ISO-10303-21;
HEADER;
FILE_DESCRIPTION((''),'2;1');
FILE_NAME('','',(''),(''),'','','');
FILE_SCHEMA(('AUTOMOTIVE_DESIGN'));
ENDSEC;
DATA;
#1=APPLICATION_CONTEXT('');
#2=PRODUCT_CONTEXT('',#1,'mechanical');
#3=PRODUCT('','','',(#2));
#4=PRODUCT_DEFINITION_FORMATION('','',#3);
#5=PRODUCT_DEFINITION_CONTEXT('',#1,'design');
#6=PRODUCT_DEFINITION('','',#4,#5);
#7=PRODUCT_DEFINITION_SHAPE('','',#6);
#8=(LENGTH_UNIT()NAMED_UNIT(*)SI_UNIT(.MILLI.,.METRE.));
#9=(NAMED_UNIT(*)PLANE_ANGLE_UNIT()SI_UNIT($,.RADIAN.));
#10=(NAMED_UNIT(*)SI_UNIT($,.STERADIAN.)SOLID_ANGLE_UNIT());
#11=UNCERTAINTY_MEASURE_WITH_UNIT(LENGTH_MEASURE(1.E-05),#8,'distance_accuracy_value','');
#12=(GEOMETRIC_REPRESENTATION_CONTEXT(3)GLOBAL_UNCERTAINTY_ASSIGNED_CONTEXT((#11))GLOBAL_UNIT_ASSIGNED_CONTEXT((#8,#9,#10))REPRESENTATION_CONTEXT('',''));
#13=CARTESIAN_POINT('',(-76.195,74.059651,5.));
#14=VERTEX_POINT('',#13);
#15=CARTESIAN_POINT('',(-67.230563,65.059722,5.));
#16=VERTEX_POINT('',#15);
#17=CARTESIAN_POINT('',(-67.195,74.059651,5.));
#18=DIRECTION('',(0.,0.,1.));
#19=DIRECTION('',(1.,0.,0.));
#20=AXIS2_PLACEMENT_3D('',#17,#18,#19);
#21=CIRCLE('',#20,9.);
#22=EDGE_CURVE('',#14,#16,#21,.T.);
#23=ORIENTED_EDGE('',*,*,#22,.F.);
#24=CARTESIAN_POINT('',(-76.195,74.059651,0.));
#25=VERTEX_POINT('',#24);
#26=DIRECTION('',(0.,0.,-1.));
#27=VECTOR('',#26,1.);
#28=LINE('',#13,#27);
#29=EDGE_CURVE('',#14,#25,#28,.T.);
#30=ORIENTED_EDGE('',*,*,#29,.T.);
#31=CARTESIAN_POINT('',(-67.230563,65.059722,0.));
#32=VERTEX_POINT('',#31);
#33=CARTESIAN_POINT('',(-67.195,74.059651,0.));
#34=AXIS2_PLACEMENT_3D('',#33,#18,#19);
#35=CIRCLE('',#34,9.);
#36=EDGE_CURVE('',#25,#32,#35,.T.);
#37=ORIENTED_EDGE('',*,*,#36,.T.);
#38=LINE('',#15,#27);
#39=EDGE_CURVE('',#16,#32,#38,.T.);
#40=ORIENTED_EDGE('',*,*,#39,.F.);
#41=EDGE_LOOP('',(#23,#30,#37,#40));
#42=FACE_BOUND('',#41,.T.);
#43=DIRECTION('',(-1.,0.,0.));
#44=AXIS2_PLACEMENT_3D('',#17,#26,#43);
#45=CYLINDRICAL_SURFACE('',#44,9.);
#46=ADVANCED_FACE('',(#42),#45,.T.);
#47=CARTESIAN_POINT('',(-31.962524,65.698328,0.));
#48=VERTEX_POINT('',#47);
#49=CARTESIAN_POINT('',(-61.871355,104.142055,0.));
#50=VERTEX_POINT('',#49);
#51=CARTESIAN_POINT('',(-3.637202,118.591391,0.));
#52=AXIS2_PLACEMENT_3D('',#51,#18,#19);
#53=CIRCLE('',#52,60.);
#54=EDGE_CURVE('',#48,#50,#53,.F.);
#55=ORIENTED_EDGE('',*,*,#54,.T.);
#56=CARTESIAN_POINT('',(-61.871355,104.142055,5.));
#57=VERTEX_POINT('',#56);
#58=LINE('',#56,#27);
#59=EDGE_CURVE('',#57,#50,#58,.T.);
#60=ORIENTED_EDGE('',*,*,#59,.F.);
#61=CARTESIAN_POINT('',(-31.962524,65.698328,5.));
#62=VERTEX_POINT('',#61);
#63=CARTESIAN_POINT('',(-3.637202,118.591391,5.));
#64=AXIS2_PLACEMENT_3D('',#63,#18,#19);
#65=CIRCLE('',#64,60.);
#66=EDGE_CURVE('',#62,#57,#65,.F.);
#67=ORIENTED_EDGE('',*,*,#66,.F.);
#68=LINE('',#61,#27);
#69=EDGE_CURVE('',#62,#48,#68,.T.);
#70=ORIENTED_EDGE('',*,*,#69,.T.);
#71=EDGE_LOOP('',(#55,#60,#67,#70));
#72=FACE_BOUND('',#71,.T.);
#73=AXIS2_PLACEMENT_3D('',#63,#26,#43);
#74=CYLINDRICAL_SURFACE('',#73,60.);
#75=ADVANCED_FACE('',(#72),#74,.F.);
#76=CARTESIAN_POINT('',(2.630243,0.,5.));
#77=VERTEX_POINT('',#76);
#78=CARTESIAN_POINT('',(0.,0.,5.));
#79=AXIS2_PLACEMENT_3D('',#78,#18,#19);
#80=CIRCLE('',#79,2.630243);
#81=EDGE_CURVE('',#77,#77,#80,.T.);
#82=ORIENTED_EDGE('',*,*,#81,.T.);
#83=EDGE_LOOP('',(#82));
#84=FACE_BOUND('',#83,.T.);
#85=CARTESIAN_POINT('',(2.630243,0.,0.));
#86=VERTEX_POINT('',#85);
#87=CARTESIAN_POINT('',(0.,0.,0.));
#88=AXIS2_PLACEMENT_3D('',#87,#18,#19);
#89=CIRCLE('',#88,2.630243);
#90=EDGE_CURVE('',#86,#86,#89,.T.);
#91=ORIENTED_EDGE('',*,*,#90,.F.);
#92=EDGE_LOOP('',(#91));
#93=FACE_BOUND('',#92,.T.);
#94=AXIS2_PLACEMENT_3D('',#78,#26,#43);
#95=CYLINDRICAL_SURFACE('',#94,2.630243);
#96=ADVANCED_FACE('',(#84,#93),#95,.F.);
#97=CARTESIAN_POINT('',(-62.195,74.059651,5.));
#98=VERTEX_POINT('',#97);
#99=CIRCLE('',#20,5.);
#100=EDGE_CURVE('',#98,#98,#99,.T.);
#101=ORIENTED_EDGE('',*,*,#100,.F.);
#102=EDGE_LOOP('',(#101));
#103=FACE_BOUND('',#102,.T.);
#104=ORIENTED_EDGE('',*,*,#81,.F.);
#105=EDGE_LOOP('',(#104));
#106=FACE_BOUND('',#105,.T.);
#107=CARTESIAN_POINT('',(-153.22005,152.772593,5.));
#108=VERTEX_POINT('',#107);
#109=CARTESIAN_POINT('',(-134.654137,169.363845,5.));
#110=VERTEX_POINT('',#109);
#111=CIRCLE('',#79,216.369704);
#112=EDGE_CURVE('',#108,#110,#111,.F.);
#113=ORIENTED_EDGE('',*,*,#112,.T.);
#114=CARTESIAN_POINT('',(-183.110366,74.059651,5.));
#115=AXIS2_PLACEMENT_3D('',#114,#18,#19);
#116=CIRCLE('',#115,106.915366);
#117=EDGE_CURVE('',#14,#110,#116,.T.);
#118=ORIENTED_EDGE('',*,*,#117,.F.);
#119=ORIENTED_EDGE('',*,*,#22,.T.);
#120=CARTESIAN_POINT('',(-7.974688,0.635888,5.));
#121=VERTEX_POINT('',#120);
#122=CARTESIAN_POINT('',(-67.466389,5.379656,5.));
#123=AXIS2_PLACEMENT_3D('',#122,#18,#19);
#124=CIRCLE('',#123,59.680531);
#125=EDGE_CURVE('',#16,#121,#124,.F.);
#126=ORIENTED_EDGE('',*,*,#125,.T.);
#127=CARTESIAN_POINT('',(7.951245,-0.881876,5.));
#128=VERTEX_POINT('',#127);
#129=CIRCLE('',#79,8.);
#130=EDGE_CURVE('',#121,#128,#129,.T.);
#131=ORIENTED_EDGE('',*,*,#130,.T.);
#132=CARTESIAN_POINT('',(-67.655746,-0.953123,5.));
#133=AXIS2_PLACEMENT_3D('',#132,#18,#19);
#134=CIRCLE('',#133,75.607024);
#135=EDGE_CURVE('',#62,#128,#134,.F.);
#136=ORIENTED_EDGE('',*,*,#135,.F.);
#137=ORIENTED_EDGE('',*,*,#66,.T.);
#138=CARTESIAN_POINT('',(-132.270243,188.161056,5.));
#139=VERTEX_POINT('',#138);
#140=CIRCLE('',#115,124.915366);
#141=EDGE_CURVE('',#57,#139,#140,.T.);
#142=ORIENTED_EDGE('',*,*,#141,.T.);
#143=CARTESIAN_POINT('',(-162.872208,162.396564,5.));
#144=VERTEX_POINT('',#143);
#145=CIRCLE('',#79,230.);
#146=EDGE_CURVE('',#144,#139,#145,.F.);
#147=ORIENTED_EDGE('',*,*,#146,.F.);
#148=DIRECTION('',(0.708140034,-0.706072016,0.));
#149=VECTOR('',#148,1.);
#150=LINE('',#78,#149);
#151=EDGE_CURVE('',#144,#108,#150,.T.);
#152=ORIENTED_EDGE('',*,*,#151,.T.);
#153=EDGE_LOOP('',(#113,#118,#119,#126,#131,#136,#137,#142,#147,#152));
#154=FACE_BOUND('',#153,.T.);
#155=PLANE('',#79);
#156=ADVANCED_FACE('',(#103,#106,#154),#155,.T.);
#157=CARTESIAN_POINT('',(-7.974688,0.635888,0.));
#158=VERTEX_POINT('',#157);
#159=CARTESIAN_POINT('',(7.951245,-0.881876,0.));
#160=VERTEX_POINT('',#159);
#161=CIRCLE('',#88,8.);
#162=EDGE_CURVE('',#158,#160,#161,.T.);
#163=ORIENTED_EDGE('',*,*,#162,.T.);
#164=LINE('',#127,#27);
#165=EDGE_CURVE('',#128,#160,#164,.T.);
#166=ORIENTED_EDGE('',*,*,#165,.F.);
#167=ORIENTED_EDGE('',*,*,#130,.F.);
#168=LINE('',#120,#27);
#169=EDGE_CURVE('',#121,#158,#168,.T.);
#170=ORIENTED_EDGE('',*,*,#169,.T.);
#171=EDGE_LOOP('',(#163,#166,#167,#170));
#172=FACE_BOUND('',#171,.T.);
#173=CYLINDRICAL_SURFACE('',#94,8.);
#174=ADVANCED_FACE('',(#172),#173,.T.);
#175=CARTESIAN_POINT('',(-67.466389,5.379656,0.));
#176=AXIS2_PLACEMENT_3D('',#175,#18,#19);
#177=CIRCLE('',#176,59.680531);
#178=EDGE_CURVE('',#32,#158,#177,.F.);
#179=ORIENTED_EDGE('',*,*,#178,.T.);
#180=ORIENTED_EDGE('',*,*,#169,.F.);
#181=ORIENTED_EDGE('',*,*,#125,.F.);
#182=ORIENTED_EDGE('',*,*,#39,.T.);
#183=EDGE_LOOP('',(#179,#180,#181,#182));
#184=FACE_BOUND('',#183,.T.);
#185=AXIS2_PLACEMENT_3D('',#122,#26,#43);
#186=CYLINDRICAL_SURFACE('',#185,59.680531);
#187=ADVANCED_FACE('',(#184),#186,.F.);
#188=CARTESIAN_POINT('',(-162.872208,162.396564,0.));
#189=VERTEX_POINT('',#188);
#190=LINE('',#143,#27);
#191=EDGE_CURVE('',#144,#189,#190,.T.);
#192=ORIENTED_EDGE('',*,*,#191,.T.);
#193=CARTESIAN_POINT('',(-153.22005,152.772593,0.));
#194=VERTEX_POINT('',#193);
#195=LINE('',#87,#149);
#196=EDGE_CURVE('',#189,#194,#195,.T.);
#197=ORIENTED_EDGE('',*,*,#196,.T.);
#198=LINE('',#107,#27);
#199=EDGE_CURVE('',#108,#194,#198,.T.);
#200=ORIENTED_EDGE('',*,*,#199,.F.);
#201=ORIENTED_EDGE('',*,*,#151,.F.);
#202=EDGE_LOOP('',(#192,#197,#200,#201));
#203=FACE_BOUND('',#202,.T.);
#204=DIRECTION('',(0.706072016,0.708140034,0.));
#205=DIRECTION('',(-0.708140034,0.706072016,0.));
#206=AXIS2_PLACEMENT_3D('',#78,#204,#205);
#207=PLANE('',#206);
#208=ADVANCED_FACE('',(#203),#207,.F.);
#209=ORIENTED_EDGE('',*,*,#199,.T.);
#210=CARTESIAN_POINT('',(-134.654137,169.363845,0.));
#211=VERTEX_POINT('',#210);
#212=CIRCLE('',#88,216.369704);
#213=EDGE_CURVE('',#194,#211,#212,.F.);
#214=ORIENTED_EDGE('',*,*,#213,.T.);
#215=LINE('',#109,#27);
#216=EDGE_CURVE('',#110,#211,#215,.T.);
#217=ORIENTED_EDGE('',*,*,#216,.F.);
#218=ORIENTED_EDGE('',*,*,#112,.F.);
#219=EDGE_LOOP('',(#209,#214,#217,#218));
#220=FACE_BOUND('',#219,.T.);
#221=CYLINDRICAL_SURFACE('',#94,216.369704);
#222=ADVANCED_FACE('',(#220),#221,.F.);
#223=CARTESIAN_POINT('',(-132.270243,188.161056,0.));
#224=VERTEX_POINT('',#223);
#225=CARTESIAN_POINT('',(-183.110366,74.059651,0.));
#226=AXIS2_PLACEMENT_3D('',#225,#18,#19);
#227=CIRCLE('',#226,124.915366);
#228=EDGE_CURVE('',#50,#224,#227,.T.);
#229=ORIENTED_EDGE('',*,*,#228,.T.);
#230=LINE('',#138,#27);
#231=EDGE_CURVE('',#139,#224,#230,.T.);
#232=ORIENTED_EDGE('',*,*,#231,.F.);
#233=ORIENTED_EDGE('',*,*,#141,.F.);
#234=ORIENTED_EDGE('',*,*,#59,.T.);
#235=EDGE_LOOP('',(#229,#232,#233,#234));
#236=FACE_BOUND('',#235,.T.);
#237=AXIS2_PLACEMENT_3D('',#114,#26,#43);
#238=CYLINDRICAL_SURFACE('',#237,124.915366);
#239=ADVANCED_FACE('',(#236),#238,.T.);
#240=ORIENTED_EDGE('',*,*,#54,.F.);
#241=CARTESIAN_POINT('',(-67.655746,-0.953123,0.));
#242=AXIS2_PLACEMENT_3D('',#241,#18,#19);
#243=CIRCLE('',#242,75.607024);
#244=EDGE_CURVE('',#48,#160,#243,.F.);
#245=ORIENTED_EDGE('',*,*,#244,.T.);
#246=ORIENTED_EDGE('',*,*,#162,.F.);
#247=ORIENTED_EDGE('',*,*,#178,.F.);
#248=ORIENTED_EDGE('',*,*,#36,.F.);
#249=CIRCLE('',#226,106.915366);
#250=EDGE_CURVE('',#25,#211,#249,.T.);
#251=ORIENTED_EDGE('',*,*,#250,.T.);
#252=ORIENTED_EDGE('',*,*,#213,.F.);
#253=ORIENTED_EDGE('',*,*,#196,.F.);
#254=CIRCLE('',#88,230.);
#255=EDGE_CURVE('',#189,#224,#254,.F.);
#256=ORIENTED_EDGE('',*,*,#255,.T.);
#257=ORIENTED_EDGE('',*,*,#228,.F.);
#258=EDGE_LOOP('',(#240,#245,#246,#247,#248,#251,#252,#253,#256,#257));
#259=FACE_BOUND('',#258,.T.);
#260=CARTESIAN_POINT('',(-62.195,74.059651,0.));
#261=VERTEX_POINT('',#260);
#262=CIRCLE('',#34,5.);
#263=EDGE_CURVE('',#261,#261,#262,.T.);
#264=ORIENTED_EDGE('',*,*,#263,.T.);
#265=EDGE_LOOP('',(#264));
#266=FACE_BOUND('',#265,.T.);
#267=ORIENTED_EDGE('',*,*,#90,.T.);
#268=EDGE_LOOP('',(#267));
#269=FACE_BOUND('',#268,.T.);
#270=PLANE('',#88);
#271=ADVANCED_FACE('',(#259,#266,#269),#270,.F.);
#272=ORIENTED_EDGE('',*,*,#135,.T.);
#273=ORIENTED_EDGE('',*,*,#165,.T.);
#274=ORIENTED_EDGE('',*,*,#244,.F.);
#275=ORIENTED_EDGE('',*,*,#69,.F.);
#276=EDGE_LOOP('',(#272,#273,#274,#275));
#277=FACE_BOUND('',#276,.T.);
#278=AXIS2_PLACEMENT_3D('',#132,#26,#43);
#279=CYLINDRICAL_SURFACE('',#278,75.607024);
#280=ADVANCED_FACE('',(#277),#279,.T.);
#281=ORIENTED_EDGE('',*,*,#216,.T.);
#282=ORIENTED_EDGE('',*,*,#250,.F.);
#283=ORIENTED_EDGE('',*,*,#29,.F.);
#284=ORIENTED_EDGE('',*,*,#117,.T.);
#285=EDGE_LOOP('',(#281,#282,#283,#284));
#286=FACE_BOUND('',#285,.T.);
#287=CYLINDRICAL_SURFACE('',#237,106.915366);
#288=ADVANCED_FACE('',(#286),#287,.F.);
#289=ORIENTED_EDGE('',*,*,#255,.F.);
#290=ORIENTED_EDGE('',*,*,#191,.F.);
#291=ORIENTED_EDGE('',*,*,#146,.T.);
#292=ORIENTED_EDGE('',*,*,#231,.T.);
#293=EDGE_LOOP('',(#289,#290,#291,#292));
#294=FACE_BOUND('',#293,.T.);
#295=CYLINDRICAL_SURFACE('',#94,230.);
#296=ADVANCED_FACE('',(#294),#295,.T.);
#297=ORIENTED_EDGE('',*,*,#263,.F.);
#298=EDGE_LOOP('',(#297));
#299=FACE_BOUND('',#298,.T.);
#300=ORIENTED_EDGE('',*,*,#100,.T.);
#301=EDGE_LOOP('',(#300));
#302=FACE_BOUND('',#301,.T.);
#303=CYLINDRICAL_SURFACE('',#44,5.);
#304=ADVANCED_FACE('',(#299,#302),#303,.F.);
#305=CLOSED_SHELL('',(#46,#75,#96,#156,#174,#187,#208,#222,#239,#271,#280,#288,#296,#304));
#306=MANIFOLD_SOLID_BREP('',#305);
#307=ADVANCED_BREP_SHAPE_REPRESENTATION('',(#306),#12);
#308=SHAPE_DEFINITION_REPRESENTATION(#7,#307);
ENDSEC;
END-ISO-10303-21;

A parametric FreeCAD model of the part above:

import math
import FreeCAD as App
import Part
import Sketcher

V = App.Vector

doc = App.newDocument("Part")
body = doc.addObject("PartDesign::Body", "Body")

# Sketch on XY plane
sketch1 = doc.addObject("Sketcher::SketchObject", "Sketch")
body.addObject(sketch1)
sketch1.AttachmentSupport = (doc.XY_Plane, [""])
sketch1.MapMode = "FlatFace"
sketch1.addGeometry([
    Part.ArcOfCircle(Part.Circle(V(0, 0, 0), V(0, 0, 1), 230), math.radians(125.105796), math.radians(135.083784)),  # 0
    Part.LineSegment(V(-162.872208, 162.396564, 0), V(-153.22005, 152.772593, 0)),  # 1
    Part.ArcOfCircle(Part.Circle(V(0, 0, 0), V(0, 0, 1), 216.369704), math.radians(128.486747), math.radians(135.083784)),  # 2
    Part.ArcOfCircle(Part.Circle(V(-183.110366, 74.059651, 0), V(0, 0, 1), 106.915366), math.radians(0), math.radians(63.049508)),  # 3
    Part.ArcOfCircle(Part.Circle(V(-67.195, 74.059651, 0), V(0, 0, 1), 9), math.radians(180), math.radians(269.773597)),  # 4
    Part.ArcOfCircle(Part.Circle(V(-67.466389, 5.379656, 0), V(0, 0, 1), 59.680531), math.radians(-4.559023), math.radians(89.773597)),  # 5
    Part.ArcOfCircle(Part.Circle(V(0, 0, 0), V(0, 0, 1), 8), math.radians(175.440977), math.radians(353.671165)),  # 6
    Part.ArcOfCircle(Part.Circle(V(-67.655746, -0.953123, 0), V(0, 0, 1), 75.607024), math.radians(0.053992), math.radians(61.830036)),  # 7
    Part.ArcOfCircle(Part.Circle(V(-3.637202, 118.591391, 0), V(0, 0, 1), 60), math.radians(-166.064923), math.radians(-118.169964)),  # 8
    Part.ArcOfCircle(Part.Circle(V(-183.110366, 74.059651, 0), V(0, 0, 1), 124.915366), math.radians(13.935077), math.radians(65.983698)),  # 9
    Part.Circle(V(0, 0, 0), V(0, 0, 1), 2.630243),  # 10
    Part.Circle(V(-67.195, 74.059651, 0), V(0, 0, 1), 5),  # 11
], False)
sketch1.addConstraint([
    Sketcher.Constraint("Coincident", 0, 2, 1, 1),
    Sketcher.Constraint("Coincident", 1, 2, 2, 2),
    Sketcher.Constraint("Coincident", 2, 1, 3, 2),
    Sketcher.Constraint("Tangent", 3, 1, 4, 1),
    Sketcher.Constraint("Tangent", 4, 2, 5, 2),
    Sketcher.Constraint("Tangent", 5, 1, 6, 1),
    Sketcher.Constraint("Coincident", 6, 2, 7, 1),
    Sketcher.Constraint("Tangent", 7, 2, 8, 2),
    Sketcher.Constraint("Tangent", 8, 1, 9, 1),
    Sketcher.Constraint("Coincident", 9, 2, 0, 1),
    Sketcher.Constraint("Coincident", 0, 3, -1, 1),
    Sketcher.Constraint("Coincident", 2, 3, -1, 1),
    Sketcher.Constraint("Coincident", 6, 3, -1, 1),
    Sketcher.Constraint("Coincident", 10, 3, -1, 1),
    Sketcher.Constraint("Coincident", 9, 3, 3, 3),
    Sketcher.Constraint("Coincident", 11, 3, 4, 3),
    Sketcher.Constraint("Horizontal", 3, 3, 4, 3),
    Sketcher.Constraint("Diameter", 11, 10.0),
    Sketcher.Constraint("Radius", 0, 230.0),
    Sketcher.Constraint("Radius", 4, 9.0),
    Sketcher.Constraint("Radius", 6, 8.0),
    Sketcher.Constraint("Radius", 8, 60.0),
    Sketcher.Constraint("Radius", 5, 59.680531),
    Sketcher.Constraint("Diameter", 10, 5.260486),
    Sketcher.Constraint("DistanceX", 4, 3, -1, 1, 67.195),
    Sketcher.Constraint("Radius", 2, 216.369704),
    Sketcher.Constraint("Radius", 3, 106.915366),
    Sketcher.Constraint("Radius", 7, 75.607024),
    Sketcher.Constraint("Radius", 9, 124.915366),
    Sketcher.Constraint("DistanceY", 8, 1, 9, 2, 84.019001),
    Sketcher.Constraint("DistanceX", 8, 3, -1, 1, 3.637202),
    Sketcher.Constraint("DistanceX", 1, 2, -1, 1, 153.22005),
    Sketcher.Constraint("DistanceY", -1, 1, 7, 2, 65.698328),
    Sketcher.Constraint("DistanceX", 0, 2, 1, 2, 9.652158),
])
pad1 = doc.addObject("PartDesign::Pad", "Pad")
body.addObject(pad1)
pad1.Profile = sketch1
pad1.Length = 5

doc.recompute()
